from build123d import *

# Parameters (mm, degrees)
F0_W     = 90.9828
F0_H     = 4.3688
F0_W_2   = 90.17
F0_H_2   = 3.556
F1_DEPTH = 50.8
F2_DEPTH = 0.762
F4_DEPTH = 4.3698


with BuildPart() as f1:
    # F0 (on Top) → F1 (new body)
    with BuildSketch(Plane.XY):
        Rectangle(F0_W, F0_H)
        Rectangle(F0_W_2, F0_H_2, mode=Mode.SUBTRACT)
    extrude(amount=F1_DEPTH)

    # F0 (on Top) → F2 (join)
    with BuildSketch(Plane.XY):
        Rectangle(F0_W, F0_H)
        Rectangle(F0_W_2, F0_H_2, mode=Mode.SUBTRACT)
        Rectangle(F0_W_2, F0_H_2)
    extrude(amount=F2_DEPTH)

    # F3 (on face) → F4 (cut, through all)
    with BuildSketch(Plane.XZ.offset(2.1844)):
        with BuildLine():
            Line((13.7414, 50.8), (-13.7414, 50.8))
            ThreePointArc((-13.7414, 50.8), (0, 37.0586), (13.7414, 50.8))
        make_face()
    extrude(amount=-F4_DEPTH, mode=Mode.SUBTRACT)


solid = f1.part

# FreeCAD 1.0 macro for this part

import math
import FreeCAD as App
import Part
import Sketcher

V = App.Vector
Q = App.Units.Quantity


def add_polygon(sketch, points):
    """Adds a closed chain of lines whose ends are joined by coincident constraints."""
    first, n = sketch.GeometryCount, len(points)
    for a, b in zip(points, points[1:] + points[:1]):
        sketch.addGeometry(Part.LineSegment(App.Vector(*a, 0), App.Vector(*b, 0)), False)
    for i in range(n):
        sketch.addConstraint(Sketcher.Constraint("Coincident", first + i, 2, first + (i + 1) % n, 1))

doc = App.newDocument("Part")
body = doc.addObject("PartDesign::Body", "Body")

sketch1 = body.newObject("Sketcher::SketchObject", "Sketch")
sketch1.AttachmentSupport = (doc.getObject("XY_Plane"), [""])
sketch1.MapMode = "FlatFace"
add_polygon(sketch1, [(-45.5, 2.2), (-45.5, -2.2), (45.5, -2.2), (45.5, 2.2)])
add_polygon(sketch1, [(45.1, -1.8), (-45.1, -1.8), (-45.1, 1.8), (45.1, 1.8)])
sketch1.addConstraint([
    Sketcher.Constraint("Vertical", 0),
    Sketcher.Constraint("Horizontal", 1),
    Sketcher.Constraint("Vertical", 2),
    Sketcher.Constraint("Horizontal", 3),
    Sketcher.Constraint("Horizontal", 4),
    Sketcher.Constraint("Vertical", 5),
    Sketcher.Constraint("Horizontal", 6),
    Sketcher.Constraint("Vertical", 7),
    Sketcher.Constraint("Symmetric", 0, 2, 2, 2, -1, 1),
    Sketcher.Constraint("Symmetric", 4, 2, 6, 2, -1, 1),
    Sketcher.Constraint("DistanceX", 4, 2, 4, 1, Q("3.55 in")),
    Sketcher.Constraint("DistanceY", 5, 1, 5, 2, Q("0.14 in")),
    Sketcher.Constraint("DistanceX", 1, 1, 1, 2, Q("3.582 in")),
    Sketcher.Constraint("DistanceY", 0, 2, 0, 1, Q("0.172 in")),
])
pad1 = body.newObject("PartDesign::Pad", "Pad")
pad1.Profile = sketch1
pad1.Length = Q("2 in")

sketch2 = body.newObject("Sketcher::SketchObject", "Sketch001")
sketch2.AttachmentSupport = (doc.getObject("XY_Plane"), [""])
sketch2.MapMode = "FlatFace"
add_polygon(sketch2, [(-45.5, 2.2), (-45.5, -2.2), (45.5, -2.2), (45.5, 2.2)])
sketch2.addConstraint([
    Sketcher.Constraint("Vertical", 0),
    Sketcher.Constraint("Horizontal", 1),
    Sketcher.Constraint("Vertical", 2),
    Sketcher.Constraint("Horizontal", 3),
    Sketcher.Constraint("Symmetric", 0, 2, 2, 2, -1, 1),
    Sketcher.Constraint("DistanceX", 1, 1, 1, 2, Q("3.582 in")),
    Sketcher.Constraint("DistanceY", 0, 2, 0, 1, Q("0.172 in")),
])
pad2 = body.newObject("PartDesign::Pad", "Pad001")
pad2.Profile = sketch2
pad2.Length = Q("0.03 in")

sketch3 = body.newObject("Sketcher::SketchObject", "Sketch002")
sketch3.AttachmentSupport = (doc.getObject("XZ_Plane"), [""])
sketch3.MapMode = "FlatFace"
sketch3.AttachmentOffset = App.Placement(V(0, 0, 0.086 * 25.4), App.Rotation())
sketch3.addGeometry([
    Part.LineSegment(V(14, 51, 0), V(-14, 51, 0)),
    Part.ArcOfCircle(Part.Circle(V(0, 51, 0), V(0, 0, 1), 14), math.radians(180), math.radians(360)),
], False)
sketch3.addConstraint([
    Sketcher.Constraint("Coincident", 0, 1, 1, 2),
    Sketcher.Constraint("Coincident", 1, 1, 0, 2),
    Sketcher.Constraint("Horizontal", 0),
    Sketcher.Constraint("PointOnObject", 1, 3, -2),
    Sketcher.Constraint("Horizontal", 1, 3, 0, 1),
    Sketcher.Constraint("DistanceY", -1, 1, 1, 3, Q("2 in")),
    Sketcher.Constraint("Radius", 1, Q("0.541 in")),
])
pocket1 = body.newObject("PartDesign::Pocket", "Pocket")
pocket1.Profile = sketch3
pocket1.Type = "ThroughAll"

doc.recompute()
